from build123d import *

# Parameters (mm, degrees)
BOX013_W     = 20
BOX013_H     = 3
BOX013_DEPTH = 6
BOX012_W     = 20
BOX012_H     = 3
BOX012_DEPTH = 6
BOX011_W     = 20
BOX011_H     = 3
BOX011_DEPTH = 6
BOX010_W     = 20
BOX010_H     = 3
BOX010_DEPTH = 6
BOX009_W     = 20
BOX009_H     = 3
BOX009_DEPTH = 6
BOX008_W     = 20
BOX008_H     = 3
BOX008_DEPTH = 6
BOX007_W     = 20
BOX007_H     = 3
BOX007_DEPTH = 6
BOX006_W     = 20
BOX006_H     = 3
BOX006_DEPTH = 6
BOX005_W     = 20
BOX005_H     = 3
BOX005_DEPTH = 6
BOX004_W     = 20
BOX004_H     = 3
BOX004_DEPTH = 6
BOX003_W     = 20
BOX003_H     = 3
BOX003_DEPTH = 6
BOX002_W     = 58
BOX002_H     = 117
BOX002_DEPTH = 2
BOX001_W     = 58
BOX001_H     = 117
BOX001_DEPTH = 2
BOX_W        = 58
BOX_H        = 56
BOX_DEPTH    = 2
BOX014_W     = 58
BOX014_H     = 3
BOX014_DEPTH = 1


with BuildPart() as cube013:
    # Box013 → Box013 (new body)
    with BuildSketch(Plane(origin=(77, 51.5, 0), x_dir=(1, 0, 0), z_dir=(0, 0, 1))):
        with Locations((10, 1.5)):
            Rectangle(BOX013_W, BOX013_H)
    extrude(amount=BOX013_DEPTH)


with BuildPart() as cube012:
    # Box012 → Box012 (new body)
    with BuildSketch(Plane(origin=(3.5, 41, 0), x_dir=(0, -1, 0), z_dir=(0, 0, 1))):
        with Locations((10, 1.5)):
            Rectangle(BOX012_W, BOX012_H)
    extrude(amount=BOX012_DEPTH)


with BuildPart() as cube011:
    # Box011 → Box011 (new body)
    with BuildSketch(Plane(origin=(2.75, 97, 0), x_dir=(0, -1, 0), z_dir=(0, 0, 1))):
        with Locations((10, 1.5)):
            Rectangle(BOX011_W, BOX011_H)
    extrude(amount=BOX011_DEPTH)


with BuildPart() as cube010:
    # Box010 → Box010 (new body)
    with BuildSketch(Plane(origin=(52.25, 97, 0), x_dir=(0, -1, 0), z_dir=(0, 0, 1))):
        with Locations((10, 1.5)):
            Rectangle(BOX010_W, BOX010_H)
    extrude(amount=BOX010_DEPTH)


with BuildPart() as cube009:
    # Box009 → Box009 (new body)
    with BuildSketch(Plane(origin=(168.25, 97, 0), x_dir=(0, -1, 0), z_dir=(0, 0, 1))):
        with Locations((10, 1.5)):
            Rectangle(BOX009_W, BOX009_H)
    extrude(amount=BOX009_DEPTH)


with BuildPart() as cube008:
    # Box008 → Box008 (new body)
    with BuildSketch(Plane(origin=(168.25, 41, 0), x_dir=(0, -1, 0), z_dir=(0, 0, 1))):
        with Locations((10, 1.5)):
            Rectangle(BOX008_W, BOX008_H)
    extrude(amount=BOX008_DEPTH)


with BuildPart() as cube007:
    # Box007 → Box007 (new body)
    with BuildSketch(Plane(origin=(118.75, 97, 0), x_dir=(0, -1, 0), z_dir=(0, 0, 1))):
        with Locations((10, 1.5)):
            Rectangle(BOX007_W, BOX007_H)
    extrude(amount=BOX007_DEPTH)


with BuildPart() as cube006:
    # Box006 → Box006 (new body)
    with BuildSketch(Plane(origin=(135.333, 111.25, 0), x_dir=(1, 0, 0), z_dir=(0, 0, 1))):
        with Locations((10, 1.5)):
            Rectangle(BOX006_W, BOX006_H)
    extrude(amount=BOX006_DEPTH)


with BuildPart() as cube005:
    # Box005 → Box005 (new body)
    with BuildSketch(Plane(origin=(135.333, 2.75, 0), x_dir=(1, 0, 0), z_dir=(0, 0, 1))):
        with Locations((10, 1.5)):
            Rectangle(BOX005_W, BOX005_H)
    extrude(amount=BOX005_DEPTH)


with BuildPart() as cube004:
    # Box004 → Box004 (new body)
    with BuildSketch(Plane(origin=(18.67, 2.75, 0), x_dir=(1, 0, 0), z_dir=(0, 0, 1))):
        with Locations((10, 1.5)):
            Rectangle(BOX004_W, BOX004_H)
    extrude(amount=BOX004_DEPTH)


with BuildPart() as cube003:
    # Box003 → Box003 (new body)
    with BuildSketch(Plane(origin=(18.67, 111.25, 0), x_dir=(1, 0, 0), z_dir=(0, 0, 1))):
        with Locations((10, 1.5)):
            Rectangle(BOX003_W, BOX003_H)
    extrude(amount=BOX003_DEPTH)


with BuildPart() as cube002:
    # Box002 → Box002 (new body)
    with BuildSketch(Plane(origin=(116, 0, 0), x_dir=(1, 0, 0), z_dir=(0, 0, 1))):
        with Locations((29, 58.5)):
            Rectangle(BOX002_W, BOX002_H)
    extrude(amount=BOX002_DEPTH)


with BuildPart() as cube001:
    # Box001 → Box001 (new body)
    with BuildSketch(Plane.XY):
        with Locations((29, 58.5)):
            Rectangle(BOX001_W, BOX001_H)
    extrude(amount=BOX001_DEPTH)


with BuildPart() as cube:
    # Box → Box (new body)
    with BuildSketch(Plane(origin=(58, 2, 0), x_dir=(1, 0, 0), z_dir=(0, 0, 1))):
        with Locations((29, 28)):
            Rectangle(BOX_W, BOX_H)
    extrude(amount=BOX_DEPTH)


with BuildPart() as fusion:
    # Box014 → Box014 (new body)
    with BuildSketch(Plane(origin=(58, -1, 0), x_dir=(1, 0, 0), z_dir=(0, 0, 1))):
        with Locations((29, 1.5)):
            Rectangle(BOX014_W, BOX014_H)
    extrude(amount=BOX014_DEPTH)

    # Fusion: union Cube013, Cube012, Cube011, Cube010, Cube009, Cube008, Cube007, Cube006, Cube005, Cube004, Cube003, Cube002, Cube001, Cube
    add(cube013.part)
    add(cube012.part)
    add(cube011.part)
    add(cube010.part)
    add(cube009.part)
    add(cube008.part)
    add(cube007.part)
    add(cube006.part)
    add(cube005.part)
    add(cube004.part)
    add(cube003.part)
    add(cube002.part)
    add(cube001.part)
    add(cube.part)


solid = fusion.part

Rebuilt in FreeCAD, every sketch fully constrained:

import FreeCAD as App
import Part
import Sketcher

V = App.Vector
Q = App.Units.Quantity


def add_polygon(sketch, points):
    """Adds a closed chain of lines whose ends are joined by coincident constraints."""
    first, n = sketch.GeometryCount, len(points)
    for a, b in zip(points, points[1:] + points[:1]):
        sketch.addGeometry(Part.LineSegment(App.Vector(*a, 0), App.Vector(*b, 0)), False)
    for i in range(n):
        sketch.addConstraint(Sketcher.Constraint("Coincident", first + i, 2, first + (i + 1) % n, 1))

doc = App.newDocument("Part")
body = doc.addObject("PartDesign::Body", "Body")

# Sketch on XY plane
sketch1 = doc.addObject("Sketcher::SketchObject", "Sketch")
body.addObject(sketch1)
sketch1.AttachmentSupport = (doc.XY_Plane, [""])
sketch1.MapMode = "FlatFace"
add_polygon(sketch1, [(77, 54.5), (77, 51.5), (97, 51.5), (97, 54.5)])  # lines 0-3
sketch1.addConstraint(Sketcher.Constraint("Vertical", 0))
sketch1.addConstraint(Sketcher.Constraint("Horizontal", 1))
sketch1.addConstraint(Sketcher.Constraint("Vertical", 2))
sketch1.addConstraint(Sketcher.Constraint("Horizontal", 3))
sketch1.addConstraint(Sketcher.Constraint("DistanceX", 1, 1, 1, 2, Q("20 mm")))
sketch1.addConstraint(Sketcher.Constraint("DistanceY", 0, 2, 0, 1, Q("3 mm")))
sketch1.addConstraint(Sketcher.Constraint("DistanceX", -1, 1, 0, 2, Q("77 mm")))
sketch1.addConstraint(Sketcher.Constraint("DistanceY", -1, 1, 0, 2, Q("51.5 mm")))
pad1 = doc.addObject("PartDesign::Pad", "Pad")
body.addObject(pad1)
pad1.Profile = sketch1
pad1.Length = 6
body2 = doc.addObject("PartDesign::Body", "Body001")

# Sketch on XY plane
sketch2 = doc.addObject("Sketcher::SketchObject", "Sketch001")
body2.addObject(sketch2)
sketch2.AttachmentSupport = (doc.getObject("XY_Plane001"), [""])
sketch2.MapMode = "FlatFace"
add_polygon(sketch2, [(6.5, 41), (3.5, 41), (3.5, 21), (6.5, 21)])  # lines 0-3
sketch2.addConstraint(Sketcher.Constraint("Horizontal", 0))
sketch2.addConstraint(Sketcher.Constraint("Vertical", 1))
sketch2.addConstraint(Sketcher.Constraint("Horizontal", 2))
sketch2.addConstraint(Sketcher.Constraint("Vertical", 3))
sketch2.addConstraint(Sketcher.Constraint("DistanceX", 0, 2, 0, 1, Q("3 mm")))
sketch2.addConstraint(Sketcher.Constraint("DistanceY", 1, 2, 1, 1, Q("20 mm")))
sketch2.addConstraint(Sketcher.Constraint("DistanceY", -1, 1, 0, 2, Q("41 mm")))
sketch2.addConstraint(Sketcher.Constraint("DistanceX", -1, 1, 0, 2, Q("3.5 mm")))
pad2 = doc.addObject("PartDesign::Pad", "Pad001")
body2.addObject(pad2)
pad2.Profile = sketch2
pad2.Length = 6
body3 = doc.addObject("PartDesign::Body", "Body002")

# Sketch on XY plane
sketch3 = doc.addObject("Sketcher::SketchObject", "Sketch002")
body3.addObject(sketch3)
sketch3.AttachmentSupport = (doc.getObject("XY_Plane002"), [""])
sketch3.MapMode = "FlatFace"
add_polygon(sketch3, [(5.8, 97), (2.8, 97), (2.8, 77), (5.8, 77)])  # lines 0-3
sketch3.addConstraint(Sketcher.Constraint("Horizontal", 0))
sketch3.addConstraint(Sketcher.Constraint("Vertical", 1))
sketch3.addConstraint(Sketcher.Constraint("Horizontal", 2))
sketch3.addConstraint(Sketcher.Constraint("Vertical", 3))
sketch3.addConstraint(Sketcher.Constraint("DistanceX", 0, 2, 0, 1, Q("3 mm")))
sketch3.addConstraint(Sketcher.Constraint("DistanceY", 1, 2, 1, 1, Q("20 mm")))
sketch3.addConstraint(Sketcher.Constraint("DistanceY", -1, 1, 0, 2, Q("97 mm")))
sketch3.addConstraint(Sketcher.Constraint("DistanceX", -1, 1, 0, 2, Q("2.75 mm")))
pad3 = doc.addObject("PartDesign::Pad", "Pad002")
body3.addObject(pad3)
pad3.Profile = sketch3
pad3.Length = 6
body4 = doc.addObject("PartDesign::Body", "Body003")

# Sketch on XY plane
sketch4 = doc.addObject("Sketcher::SketchObject", "Sketch003")
body4.addObject(sketch4)
sketch4.AttachmentSupport = (doc.getObject("XY_Plane003"), [""])
sketch4.MapMode = "FlatFace"
add_polygon(sketch4, [(55.2, 97), (52.2, 97), (52.2, 77), (55.2, 77)])  # lines 0-3
sketch4.addConstraint(Sketcher.Constraint("Horizontal", 0))
sketch4.addConstraint(Sketcher.Constraint("Vertical", 1))
sketch4.addConstraint(Sketcher.Constraint("Horizontal", 2))
sketch4.addConstraint(Sketcher.Constraint("Vertical", 3))
sketch4.addConstraint(Sketcher.Constraint("DistanceX", 0, 2, 0, 1, Q("3 mm")))
sketch4.addConstraint(Sketcher.Constraint("DistanceY", 1, 2, 1, 1, Q("20 mm")))
sketch4.addConstraint(Sketcher.Constraint("DistanceY", -1, 1, 0, 2, Q("97 mm")))
sketch4.addConstraint(Sketcher.Constraint("DistanceX", -1, 1, 0, 2, Q("52.25 mm")))
pad4 = doc.addObject("PartDesign::Pad", "Pad003")
body4.addObject(pad4)
pad4.Profile = sketch4
pad4.Length = 6
body5 = doc.addObject("PartDesign::Body", "Body004")

# Sketch on XY plane
sketch5 = doc.addObject("Sketcher::SketchObject", "Sketch004")
body5.addObject(sketch5)
sketch5.AttachmentSupport = (doc.getObject("XY_Plane004"), [""])
sketch5.MapMode = "FlatFace"
add_polygon(sketch5, [(171.2, 97), (168.2, 97), (168.2, 77), (171.2, 77)])  # lines 0-3
sketch5.addConstraint(Sketcher.Constraint("Horizontal", 0))
sketch5.addConstraint(Sketcher.Constraint("Vertical", 1))
sketch5.addConstraint(Sketcher.Constraint("Horizontal", 2))
sketch5.addConstraint(Sketcher.Constraint("Vertical", 3))
sketch5.addConstraint(Sketcher.Constraint("DistanceX", 0, 2, 0, 1, Q("3 mm")))
sketch5.addConstraint(Sketcher.Constraint("DistanceY", 1, 2, 1, 1, Q("20 mm")))
sketch5.addConstraint(Sketcher.Constraint("DistanceY", -1, 1, 0, 2, Q("97 mm")))
sketch5.addConstraint(Sketcher.Constraint("DistanceX", -1, 1, 0, 2, Q("168.25 mm")))
pad5 = doc.addObject("PartDesign::Pad", "Pad004")
body5.addObject(pad5)
pad5.Profile = sketch5
pad5.Length = 6
body6 = doc.addObject("PartDesign::Body", "Body005")

# Sketch on XY plane
sketch6 = doc.addObject("Sketcher::SketchObject", "Sketch005")
body6.addObject(sketch6)
sketch6.AttachmentSupport = (doc.getObject("XY_Plane005"), [""])
sketch6.MapMode = "FlatFace"
add_polygon(sketch6, [(171.2, 41), (168.2, 41), (168.2, 21), (171.2, 21)])  # lines 0-3
sketch6.addConstraint(Sketcher.Constraint("Horizontal", 0))
sketch6.addConstraint(Sketcher.Constraint("Vertical", 1))
sketch6.addConstraint(Sketcher.Constraint("Horizontal", 2))
sketch6.addConstraint(Sketcher.Constraint("Vertical", 3))
sketch6.addConstraint(Sketcher.Constraint("DistanceX", 0, 2, 0, 1, Q("3 mm")))
sketch6.addConstraint(Sketcher.Constraint("DistanceY", 1, 2, 1, 1, Q("20 mm")))
sketch6.addConstraint(Sketcher.Constraint("DistanceY", -1, 1, 0, 2, Q("41 mm")))
sketch6.addConstraint(Sketcher.Constraint("DistanceX", -1, 1, 0, 2, Q("168.25 mm")))
pad6 = doc.addObject("PartDesign::Pad", "Pad005")
body6.addObject(pad6)
pad6.Profile = sketch6
pad6.Length = 6
body7 = doc.addObject("PartDesign::Body", "Body006")

# Sketch on XY plane
sketch7 = doc.addObject("Sketcher::SketchObject", "Sketch006")
body7.addObject(sketch7)
sketch7.AttachmentSupport = (doc.getObject("XY_Plane006"), [""])
sketch7.MapMode = "FlatFace"
add_polygon(sketch7, [(121.8, 97), (118.8, 97), (118.8, 77), (121.8, 77)])  # lines 0-3
sketch7.addConstraint(Sketcher.Constraint("Horizontal", 0))
sketch7.addConstraint(Sketcher.Constraint("Vertical", 1))
sketch7.addConstraint(Sketcher.Constraint("Horizontal", 2))
sketch7.addConstraint(Sketcher.Constraint("Vertical", 3))
sketch7.addConstraint(Sketcher.Constraint("DistanceX", 0, 2, 0, 1, Q("3 mm")))
sketch7.addConstraint(Sketcher.Constraint("DistanceY", 1, 2, 1, 1, Q("20 mm")))
sketch7.addConstraint(Sketcher.Constraint("DistanceY", -1, 1, 0, 2, Q("97 mm")))
sketch7.addConstraint(Sketcher.Constraint("DistanceX", -1, 1, 0, 2, Q("118.75 mm")))
pad7 = doc.addObject("PartDesign::Pad", "Pad006")
body7.addObject(pad7)
pad7.Profile = sketch7
pad7.Length = 6
body8 = doc.addObject("PartDesign::Body", "Body007")

# Sketch on XY plane
sketch8 = doc.addObject("Sketcher::SketchObject", "Sketch007")
body8.addObject(sketch8)
sketch8.AttachmentSupport = (doc.getObject("XY_Plane007"), [""])
sketch8.MapMode = "FlatFace"
add_polygon(sketch8, [(135.3, 114.2), (135.3, 111.2), (155.3, 111.2), (155.3, 114.2)])  # lines 0-3
sketch8.addConstraint(Sketcher.Constraint("Vertical", 0))
sketch8.addConstraint(Sketcher.Constraint("Horizontal", 1))
sketch8.addConstraint(Sketcher.Constraint("Vertical", 2))
sketch8.addConstraint(Sketcher.Constraint("Horizontal", 3))
sketch8.addConstraint(Sketcher.Constraint("DistanceX", 1, 1, 1, 2, Q("20 mm")))
sketch8.addConstraint(Sketcher.Constraint("DistanceY", 0, 2, 0, 1, Q("3 mm")))
sketch8.addConstraint(Sketcher.Constraint("DistanceY", -1, 1, 0, 2, Q("111.25 mm")))
sketch8.addConstraint(Sketcher.Constraint("DistanceX", -1, 1, 0, 2, Q("135.333 mm")))
pad8 = doc.addObject("PartDesign::Pad", "Pad007")
body8.addObject(pad8)
pad8.Profile = sketch8
pad8.Length = 6
body9 = doc.addObject("PartDesign::Body", "Body008")

# Sketch on XY plane
sketch9 = doc.addObject("Sketcher::SketchObject", "Sketch008")
body9.addObject(sketch9)
sketch9.AttachmentSupport = (doc.getObject("XY_Plane008"), [""])
sketch9.MapMode = "FlatFace"
add_polygon(sketch9, [(135.3, 5.8), (135.3, 2.8), (155.3, 2.8), (155.3, 5.8)])  # lines 0-3
sketch9.addConstraint(Sketcher.Constraint("Vertical", 0))
sketch9.addConstraint(Sketcher.Constraint("Horizontal", 1))
sketch9.addConstraint(Sketcher.Constraint("Vertical", 2))
sketch9.addConstraint(Sketcher.Constraint("Horizontal", 3))
sketch9.addConstraint(Sketcher.Constraint("DistanceX", 1, 1, 1, 2, Q("20 mm")))
sketch9.addConstraint(Sketcher.Constraint("DistanceY", 0, 2, 0, 1, Q("3 mm")))
sketch9.addConstraint(Sketcher.Constraint("DistanceY", -1, 1, 0, 2, Q("2.75 mm")))
sketch9.addConstraint(Sketcher.Constraint("DistanceX", -1, 1, 0, 2, Q("135.333 mm")))
pad9 = doc.addObject("PartDesign::Pad", "Pad008")
body9.addObject(pad9)
pad9.Profile = sketch9
pad9.Length = 6
body10 = doc.addObject("PartDesign::Body", "Body009")

# Sketch on XY plane
sketch10 = doc.addObject("Sketcher::SketchObject", "Sketch009")
body10.addObject(sketch10)
sketch10.AttachmentSupport = (doc.getObject("XY_Plane009"), [""])
sketch10.MapMode = "FlatFace"
add_polygon(sketch10, [(18.7, 5.8), (18.7, 2.8), (38.7, 2.8), (38.7, 5.8)])  # lines 0-3
sketch10.addConstraint(Sketcher.Constraint("Vertical", 0))
sketch10.addConstraint(Sketcher.Constraint("Horizontal", 1))
sketch10.addConstraint(Sketcher.Constraint("Vertical", 2))
sketch10.addConstraint(Sketcher.Constraint("Horizontal", 3))
sketch10.addConstraint(Sketcher.Constraint("DistanceX", 1, 1, 1, 2, Q("20 mm")))
sketch10.addConstraint(Sketcher.Constraint("DistanceY", 0, 2, 0, 1, Q("3 mm")))
sketch10.addConstraint(Sketcher.Constraint("DistanceX", -1, 1, 0, 2, Q("18.67 mm")))
sketch10.addConstraint(Sketcher.Constraint("DistanceY", -1, 1, 0, 2, Q("2.75 mm")))
pad10 = doc.addObject("PartDesign::Pad", "Pad009")
body10.addObject(pad10)
pad10.Profile = sketch10
pad10.Length = 6
body11 = doc.addObject("PartDesign::Body", "Body010")

# Sketch on XY plane
sketch11 = doc.addObject("Sketcher::SketchObject", "Sketch010")
body11.addObject(sketch11)
sketch11.AttachmentSupport = (doc.getObject("XY_Plane010"), [""])
sketch11.MapMode = "FlatFace"
add_polygon(sketch11, [(18.7, 114.2), (18.7, 111.2), (38.7, 111.2), (38.7, 114.2)])  # lines 0-3
sketch11.addConstraint(Sketcher.Constraint("Vertical", 0))
sketch11.addConstraint(Sketcher.Constraint("Horizontal", 1))
sketch11.addConstraint(Sketcher.Constraint("Vertical", 2))
sketch11.addConstraint(Sketcher.Constraint("Horizontal", 3))
sketch11.addConstraint(Sketcher.Constraint("DistanceX", 1, 1, 1, 2, Q("20 mm")))
sketch11.addConstraint(Sketcher.Constraint("DistanceY", 0, 2, 0, 1, Q("3 mm")))
sketch11.addConstraint(Sketcher.Constraint("DistanceX", -1, 1, 0, 2, Q("18.67 mm")))
sketch11.addConstraint(Sketcher.Constraint("DistanceY", -1, 1, 0, 2, Q("111.25 mm")))
pad11 = doc.addObject("PartDesign::Pad", "Pad010")
body11.addObject(pad11)
pad11.Profile = sketch11
pad11.Length = 6
body12 = doc.addObject("PartDesign::Body", "Body011")

# Sketch on XY plane
sketch12 = doc.addObject("Sketcher::SketchObject", "Sketch011")
body12.addObject(sketch12)
sketch12.AttachmentSupport = (doc.getObject("XY_Plane011"), [""])
sketch12.MapMode = "FlatFace"
add_polygon(sketch12, [(116, 117), (116, 0), (174, 0), (174, 117)])  # lines 0-3
sketch12.addConstraint(Sketcher.Constraint("Vertical", 0))
sketch12.addConstraint(Sketcher.Constraint("Horizontal", 1))
sketch12.addConstraint(Sketcher.Constraint("Vertical", 2))
sketch12.addConstraint(Sketcher.Constraint("Horizontal", 3))
sketch12.addConstraint(Sketcher.Constraint("PointOnObject", 0, 2, -1))
sketch12.addConstraint(Sketcher.Constraint("DistanceX", 1, 1, 1, 2, Q("58 mm")))
sketch12.addConstraint(Sketcher.Constraint("DistanceY", 0, 2, 0, 1, Q("117 mm")))
sketch12.addConstraint(Sketcher.Constraint("DistanceX", -1, 1, 0, 2, Q("116 mm")))
pad12 = doc.addObject("PartDesign::Pad", "Pad011")
body12.addObject(pad12)
pad12.Profile = sketch12
pad12.Length = 2
body13 = doc.addObject("PartDesign::Body", "Body012")

# Sketch on XY plane
sketch13 = doc.addObject("Sketcher::SketchObject", "Sketch012")
body13.addObject(sketch13)
sketch13.AttachmentSupport = (doc.getObject("XY_Plane012"), [""])
sketch13.MapMode = "FlatFace"
add_polygon(sketch13, [(0, 117), (0, 0), (58, 0), (58, 117)])  # lines 0-3
sketch13.addConstraint(Sketcher.Constraint("Vertical", 0))
sketch13.addConstraint(Sketcher.Constraint("Horizontal", 1))
sketch13.addConstraint(Sketcher.Constraint("Vertical", 2))
sketch13.addConstraint(Sketcher.Constraint("Horizontal", 3))
sketch13.addConstraint(Sketcher.Constraint("Coincident", 0, 2, -1, 1))
sketch13.addConstraint(Sketcher.Constraint("DistanceX", 1, 1, 1, 2, Q("58 mm")))
sketch13.addConstraint(Sketcher.Constraint("DistanceY", 0, 2, 0, 1, Q("117 mm")))
pad13 = doc.addObject("PartDesign::Pad", "Pad012")
body13.addObject(pad13)
pad13.Profile = sketch13
pad13.Length = 2
body14 = doc.addObject("PartDesign::Body", "Body013")

# Sketch on XY plane
sketch14 = doc.addObject("Sketcher::SketchObject", "Sketch013")
body14.addObject(sketch14)
sketch14.AttachmentSupport = (doc.getObject("XY_Plane013"), [""])
sketch14.MapMode = "FlatFace"
add_polygon(sketch14, [(58, 58), (58, 2), (116, 2), (116, 58)])  # lines 0-3
sketch14.addConstraint(Sketcher.Constraint("Vertical", 0))
sketch14.addConstraint(Sketcher.Constraint("Horizontal", 1))
sketch14.addConstraint(Sketcher.Constraint("Vertical", 2))
sketch14.addConstraint(Sketcher.Constraint("Horizontal", 3))
sketch14.addConstraint(Sketcher.Constraint("DistanceX", 1, 1, 1, 2, Q("58 mm")))
sketch14.addConstraint(Sketcher.Constraint("DistanceY", 0, 2, 0, 1, Q("56 mm")))
sketch14.addConstraint(Sketcher.Constraint("DistanceX", -1, 1, 0, 2, Q("58 mm")))
sketch14.addConstraint(Sketcher.Constraint("DistanceY", -1, 1, 0, 2, Q("2 mm")))
pad14 = doc.addObject("PartDesign::Pad", "Pad013")
body14.addObject(pad14)
pad14.Profile = sketch14
pad14.Length = 2
body15 = doc.addObject("PartDesign::Body", "Body014")
body15.AllowCompound = True

# Sketch on XY plane
sketch15 = doc.addObject("Sketcher::SketchObject", "Sketch014")
body15.addObject(sketch15)
sketch15.AttachmentSupport = (doc.getObject("XY_Plane014"), [""])
sketch15.MapMode = "FlatFace"
add_polygon(sketch15, [(58, 2), (58, -1), (116, -1), (116, 2)])  # lines 0-3
sketch15.addConstraint(Sketcher.Constraint("Vertical", 0))
sketch15.addConstraint(Sketcher.Constraint("Horizontal", 1))
sketch15.addConstraint(Sketcher.Constraint("Vertical", 2))
sketch15.addConstraint(Sketcher.Constraint("Horizontal", 3))
sketch15.addConstraint(Sketcher.Constraint("DistanceX", 1, 1, 1, 2, Q("58 mm")))
sketch15.addConstraint(Sketcher.Constraint("DistanceY", 0, 2, 0, 1, Q("3 mm")))
sketch15.addConstraint(Sketcher.Constraint("DistanceX", -1, 1, 0, 2, Q("58 mm")))
sketch15.addConstraint(Sketcher.Constraint("DistanceY", 0, 2, -1, 1, Q("1 mm")))
pad15 = doc.addObject("PartDesign::Pad", "Pad014")
body15.addObject(pad15)
pad15.Profile = sketch15
pad15.Length = 1
doc.recompute()

boolean = doc.addObject("PartDesign::Boolean", "Boolean")
body15.addObject(boolean)
boolean.Type = "Fuse"
boolean.addObjects([body])
doc.recompute()

boolean2 = doc.addObject("PartDesign::Boolean", "Boolean001")
body15.addObject(boolean2)
boolean2.Type = "Fuse"
boolean2.addObjects([body2])
doc.recompute()

boolean3 = doc.addObject("PartDesign::Boolean", "Boolean002")
body15.addObject(boolean3)
boolean3.Type = "Fuse"
boolean3.addObjects([body3])
doc.recompute()

boolean4 = doc.addObject("PartDesign::Boolean", "Boolean003")
body15.addObject(boolean4)
boolean4.Type = "Fuse"
boolean4.addObjects([body4])
doc.recompute()

boolean5 = doc.addObject("PartDesign::Boolean", "Boolean004")
body15.addObject(boolean5)
boolean5.Type = "Fuse"
boolean5.addObjects([body5])
doc.recompute()

boolean6 = doc.addObject("PartDesign::Boolean", "Boolean005")
body15.addObject(boolean6)
boolean6.Type = "Fuse"
boolean6.addObjects([body6])
doc.recompute()

boolean7 = doc.addObject("PartDesign::Boolean", "Boolean006")
body15.addObject(boolean7)
boolean7.Type = "Fuse"
boolean7.addObjects([body7])
doc.recompute()

boolean8 = doc.addObject("PartDesign::Boolean", "Boolean007")
body15.addObject(boolean8)
boolean8.Type = "Fuse"
boolean8.addObjects([body8])
doc.recompute()

boolean9 = doc.addObject("PartDesign::Boolean", "Boolean008")
body15.addObject(boolean9)
boolean9.Type = "Fuse"
boolean9.addObjects([body9])
doc.recompute()

boolean10 = doc.addObject("PartDesign::Boolean", "Boolean009")
body15.addObject(boolean10)
boolean10.Type = "Fuse"
boolean10.addObjects([body10])
doc.recompute()

boolean11 = doc.addObject("PartDesign::Boolean", "Boolean010")
body15.addObject(boolean11)
boolean11.Type = "Fuse"
boolean11.addObjects([body11])
doc.recompute()

boolean12 = doc.addObject("PartDesign::Boolean", "Boolean011")
body15.addObject(boolean12)
boolean12.Type = "Fuse"
boolean12.addObjects([body12])
doc.recompute()

boolean13 = doc.addObject("PartDesign::Boolean", "Boolean012")
body15.addObject(boolean13)
boolean13.Type = "Fuse"
boolean13.addObjects([body13])
doc.recompute()

boolean14 = doc.addObject("PartDesign::Boolean", "Boolean013")
body15.addObject(boolean14)
boolean14.Type = "Fuse"
boolean14.addObjects([body14])

doc.recompute()
